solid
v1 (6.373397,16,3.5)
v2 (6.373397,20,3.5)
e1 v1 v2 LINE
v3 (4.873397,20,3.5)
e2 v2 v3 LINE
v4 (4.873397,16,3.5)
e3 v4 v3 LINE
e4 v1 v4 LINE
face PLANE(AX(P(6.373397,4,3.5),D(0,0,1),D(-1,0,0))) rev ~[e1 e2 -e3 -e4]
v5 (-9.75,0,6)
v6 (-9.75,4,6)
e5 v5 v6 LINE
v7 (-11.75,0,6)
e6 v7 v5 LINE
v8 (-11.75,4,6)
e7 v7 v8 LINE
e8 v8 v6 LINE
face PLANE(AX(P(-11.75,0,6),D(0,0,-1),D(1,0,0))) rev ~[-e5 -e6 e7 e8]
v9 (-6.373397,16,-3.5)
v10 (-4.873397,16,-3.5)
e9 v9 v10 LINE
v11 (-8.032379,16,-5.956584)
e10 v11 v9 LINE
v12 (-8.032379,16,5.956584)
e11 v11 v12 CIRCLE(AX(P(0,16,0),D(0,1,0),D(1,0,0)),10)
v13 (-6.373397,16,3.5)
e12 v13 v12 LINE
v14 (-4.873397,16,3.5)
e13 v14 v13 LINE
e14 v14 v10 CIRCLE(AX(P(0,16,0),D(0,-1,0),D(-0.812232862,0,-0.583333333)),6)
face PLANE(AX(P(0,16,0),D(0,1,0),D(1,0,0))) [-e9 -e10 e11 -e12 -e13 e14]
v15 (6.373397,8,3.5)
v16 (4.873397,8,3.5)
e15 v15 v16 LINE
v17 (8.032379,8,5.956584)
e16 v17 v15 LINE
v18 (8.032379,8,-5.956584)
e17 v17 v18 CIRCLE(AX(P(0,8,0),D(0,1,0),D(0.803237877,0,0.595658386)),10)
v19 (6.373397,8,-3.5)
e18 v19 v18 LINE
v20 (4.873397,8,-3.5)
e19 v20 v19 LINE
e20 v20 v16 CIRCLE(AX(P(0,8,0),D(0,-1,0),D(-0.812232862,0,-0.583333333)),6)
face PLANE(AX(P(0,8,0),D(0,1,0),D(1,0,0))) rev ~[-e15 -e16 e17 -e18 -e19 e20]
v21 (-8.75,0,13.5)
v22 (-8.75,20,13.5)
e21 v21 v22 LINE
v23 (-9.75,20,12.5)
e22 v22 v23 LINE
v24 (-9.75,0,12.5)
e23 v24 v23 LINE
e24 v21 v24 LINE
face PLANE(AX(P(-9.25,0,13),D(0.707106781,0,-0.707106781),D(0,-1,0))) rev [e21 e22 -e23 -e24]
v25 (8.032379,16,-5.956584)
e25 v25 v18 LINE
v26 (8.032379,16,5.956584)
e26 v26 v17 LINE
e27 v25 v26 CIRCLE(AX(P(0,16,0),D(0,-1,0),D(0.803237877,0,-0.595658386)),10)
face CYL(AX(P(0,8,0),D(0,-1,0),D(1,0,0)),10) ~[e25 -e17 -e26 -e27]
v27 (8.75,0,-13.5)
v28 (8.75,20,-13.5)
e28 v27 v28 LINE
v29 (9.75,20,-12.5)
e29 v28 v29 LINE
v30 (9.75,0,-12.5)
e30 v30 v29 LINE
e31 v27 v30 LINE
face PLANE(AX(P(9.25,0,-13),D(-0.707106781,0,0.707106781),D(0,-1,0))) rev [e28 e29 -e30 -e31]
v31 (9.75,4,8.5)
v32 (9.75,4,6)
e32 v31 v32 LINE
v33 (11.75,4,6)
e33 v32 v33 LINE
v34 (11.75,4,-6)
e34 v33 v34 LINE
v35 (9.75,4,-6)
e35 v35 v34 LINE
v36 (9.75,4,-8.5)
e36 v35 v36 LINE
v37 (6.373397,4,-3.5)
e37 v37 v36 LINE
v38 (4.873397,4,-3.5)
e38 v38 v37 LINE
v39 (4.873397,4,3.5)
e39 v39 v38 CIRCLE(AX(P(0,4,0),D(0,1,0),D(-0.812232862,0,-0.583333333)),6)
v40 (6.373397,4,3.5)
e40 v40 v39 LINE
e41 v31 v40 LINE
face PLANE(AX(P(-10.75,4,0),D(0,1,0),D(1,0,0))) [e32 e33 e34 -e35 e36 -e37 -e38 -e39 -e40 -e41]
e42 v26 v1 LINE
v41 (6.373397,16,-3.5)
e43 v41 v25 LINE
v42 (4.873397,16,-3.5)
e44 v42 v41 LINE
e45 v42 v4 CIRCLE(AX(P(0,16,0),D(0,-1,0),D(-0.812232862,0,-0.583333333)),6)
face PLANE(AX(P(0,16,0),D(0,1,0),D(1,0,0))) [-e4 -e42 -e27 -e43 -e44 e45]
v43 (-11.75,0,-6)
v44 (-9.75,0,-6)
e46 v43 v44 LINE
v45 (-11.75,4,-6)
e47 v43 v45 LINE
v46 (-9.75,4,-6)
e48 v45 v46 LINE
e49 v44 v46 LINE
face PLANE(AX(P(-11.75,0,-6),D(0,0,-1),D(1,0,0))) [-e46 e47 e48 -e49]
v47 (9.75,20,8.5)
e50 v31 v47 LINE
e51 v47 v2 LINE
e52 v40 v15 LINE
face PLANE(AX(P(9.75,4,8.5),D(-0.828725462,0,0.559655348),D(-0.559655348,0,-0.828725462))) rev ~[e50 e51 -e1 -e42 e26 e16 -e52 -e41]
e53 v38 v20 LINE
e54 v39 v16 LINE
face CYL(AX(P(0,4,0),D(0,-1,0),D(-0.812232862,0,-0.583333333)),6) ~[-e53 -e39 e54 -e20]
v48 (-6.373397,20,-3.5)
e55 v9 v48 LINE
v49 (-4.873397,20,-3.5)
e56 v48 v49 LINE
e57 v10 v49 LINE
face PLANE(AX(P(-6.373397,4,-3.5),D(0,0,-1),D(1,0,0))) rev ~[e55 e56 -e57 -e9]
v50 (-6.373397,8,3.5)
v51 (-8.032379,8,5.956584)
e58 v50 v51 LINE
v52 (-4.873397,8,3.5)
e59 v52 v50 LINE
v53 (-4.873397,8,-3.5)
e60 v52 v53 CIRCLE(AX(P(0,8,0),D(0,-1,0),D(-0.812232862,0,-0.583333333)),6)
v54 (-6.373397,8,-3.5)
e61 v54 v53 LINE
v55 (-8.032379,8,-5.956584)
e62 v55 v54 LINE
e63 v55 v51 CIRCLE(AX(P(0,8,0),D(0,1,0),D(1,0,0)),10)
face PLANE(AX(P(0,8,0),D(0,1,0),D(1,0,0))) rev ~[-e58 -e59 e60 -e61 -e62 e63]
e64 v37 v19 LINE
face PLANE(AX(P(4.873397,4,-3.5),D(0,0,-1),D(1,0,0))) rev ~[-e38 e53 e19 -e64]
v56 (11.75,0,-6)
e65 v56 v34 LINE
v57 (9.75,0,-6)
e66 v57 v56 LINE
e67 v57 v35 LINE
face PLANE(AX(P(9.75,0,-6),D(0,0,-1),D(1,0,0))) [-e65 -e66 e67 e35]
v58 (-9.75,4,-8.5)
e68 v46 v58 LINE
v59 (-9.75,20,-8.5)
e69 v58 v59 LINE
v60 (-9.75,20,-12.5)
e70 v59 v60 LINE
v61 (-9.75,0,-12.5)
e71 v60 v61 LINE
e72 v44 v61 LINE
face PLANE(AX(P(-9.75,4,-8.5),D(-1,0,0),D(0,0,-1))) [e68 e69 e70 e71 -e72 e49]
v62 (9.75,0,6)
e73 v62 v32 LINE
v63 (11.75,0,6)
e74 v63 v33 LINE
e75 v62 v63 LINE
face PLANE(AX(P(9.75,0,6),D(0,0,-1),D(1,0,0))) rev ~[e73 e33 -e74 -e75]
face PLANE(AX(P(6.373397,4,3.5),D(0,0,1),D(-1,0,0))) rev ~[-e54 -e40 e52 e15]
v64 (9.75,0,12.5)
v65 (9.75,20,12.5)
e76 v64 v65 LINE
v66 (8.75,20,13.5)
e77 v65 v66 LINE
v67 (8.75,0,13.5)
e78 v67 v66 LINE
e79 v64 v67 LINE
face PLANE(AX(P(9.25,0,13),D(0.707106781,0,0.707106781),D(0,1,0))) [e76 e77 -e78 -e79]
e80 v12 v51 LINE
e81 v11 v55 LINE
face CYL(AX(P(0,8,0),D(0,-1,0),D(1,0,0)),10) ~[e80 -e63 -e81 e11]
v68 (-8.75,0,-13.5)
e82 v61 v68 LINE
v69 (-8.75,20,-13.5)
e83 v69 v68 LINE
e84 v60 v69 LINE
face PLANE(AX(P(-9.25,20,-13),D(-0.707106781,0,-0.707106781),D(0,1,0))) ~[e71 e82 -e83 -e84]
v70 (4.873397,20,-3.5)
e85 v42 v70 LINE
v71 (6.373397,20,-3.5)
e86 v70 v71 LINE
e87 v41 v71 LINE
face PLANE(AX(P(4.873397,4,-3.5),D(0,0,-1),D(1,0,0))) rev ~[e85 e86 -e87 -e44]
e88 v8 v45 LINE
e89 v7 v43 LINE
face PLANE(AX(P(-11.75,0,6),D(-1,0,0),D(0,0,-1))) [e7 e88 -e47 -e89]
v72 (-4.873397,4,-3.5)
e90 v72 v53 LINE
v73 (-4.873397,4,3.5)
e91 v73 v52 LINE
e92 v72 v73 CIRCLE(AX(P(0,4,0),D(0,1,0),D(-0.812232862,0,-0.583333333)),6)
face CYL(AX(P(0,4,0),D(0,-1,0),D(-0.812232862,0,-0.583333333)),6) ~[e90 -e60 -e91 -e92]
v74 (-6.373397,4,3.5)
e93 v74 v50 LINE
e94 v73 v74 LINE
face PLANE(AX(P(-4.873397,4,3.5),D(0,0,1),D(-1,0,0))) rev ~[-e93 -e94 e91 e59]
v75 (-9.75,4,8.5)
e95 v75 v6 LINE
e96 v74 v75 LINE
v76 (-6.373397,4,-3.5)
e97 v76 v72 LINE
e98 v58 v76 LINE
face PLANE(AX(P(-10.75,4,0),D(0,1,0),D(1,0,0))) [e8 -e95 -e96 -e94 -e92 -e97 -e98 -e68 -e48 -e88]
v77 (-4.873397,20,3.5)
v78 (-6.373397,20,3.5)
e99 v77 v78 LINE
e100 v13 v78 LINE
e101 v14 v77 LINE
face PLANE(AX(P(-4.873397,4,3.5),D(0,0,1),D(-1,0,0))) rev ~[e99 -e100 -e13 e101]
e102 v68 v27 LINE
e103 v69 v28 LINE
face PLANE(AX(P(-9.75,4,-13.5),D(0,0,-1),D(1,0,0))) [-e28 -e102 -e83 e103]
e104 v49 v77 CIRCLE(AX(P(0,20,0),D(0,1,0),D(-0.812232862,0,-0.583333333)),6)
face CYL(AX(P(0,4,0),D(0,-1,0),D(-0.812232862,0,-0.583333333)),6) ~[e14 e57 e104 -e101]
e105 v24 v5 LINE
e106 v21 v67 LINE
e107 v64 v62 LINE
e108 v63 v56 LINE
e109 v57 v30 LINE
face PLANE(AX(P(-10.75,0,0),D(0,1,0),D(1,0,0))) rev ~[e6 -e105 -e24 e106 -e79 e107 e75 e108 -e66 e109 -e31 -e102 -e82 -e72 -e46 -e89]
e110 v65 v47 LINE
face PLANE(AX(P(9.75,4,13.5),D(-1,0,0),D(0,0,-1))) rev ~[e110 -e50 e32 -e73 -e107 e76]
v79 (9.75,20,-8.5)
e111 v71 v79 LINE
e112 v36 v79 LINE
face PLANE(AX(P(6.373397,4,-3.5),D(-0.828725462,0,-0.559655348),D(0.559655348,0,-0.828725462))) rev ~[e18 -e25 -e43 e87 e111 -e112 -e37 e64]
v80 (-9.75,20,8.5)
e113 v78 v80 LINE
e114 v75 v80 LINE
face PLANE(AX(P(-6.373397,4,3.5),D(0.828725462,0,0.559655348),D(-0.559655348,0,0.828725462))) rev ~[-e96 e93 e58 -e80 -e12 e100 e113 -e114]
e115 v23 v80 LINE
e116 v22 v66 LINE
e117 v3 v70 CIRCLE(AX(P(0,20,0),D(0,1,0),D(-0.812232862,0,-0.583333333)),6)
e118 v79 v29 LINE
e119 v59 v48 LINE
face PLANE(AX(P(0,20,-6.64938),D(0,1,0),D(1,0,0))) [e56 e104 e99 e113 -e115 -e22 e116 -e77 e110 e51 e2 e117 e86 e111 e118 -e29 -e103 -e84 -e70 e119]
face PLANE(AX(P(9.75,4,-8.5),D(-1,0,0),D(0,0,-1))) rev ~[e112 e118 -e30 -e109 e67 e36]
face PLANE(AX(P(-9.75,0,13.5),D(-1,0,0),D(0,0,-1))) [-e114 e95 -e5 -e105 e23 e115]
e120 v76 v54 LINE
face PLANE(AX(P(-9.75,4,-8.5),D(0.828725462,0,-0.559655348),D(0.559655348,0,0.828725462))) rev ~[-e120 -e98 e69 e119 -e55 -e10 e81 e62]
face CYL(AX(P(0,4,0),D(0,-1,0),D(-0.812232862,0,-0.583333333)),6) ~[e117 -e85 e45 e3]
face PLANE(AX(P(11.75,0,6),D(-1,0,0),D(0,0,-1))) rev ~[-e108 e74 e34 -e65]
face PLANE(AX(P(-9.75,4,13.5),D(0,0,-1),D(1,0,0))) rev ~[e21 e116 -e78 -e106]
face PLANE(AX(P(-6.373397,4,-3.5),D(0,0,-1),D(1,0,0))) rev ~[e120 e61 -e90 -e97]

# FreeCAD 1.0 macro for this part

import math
import FreeCAD as App
import Part
import Sketcher

V = App.Vector


def edges_at(feature, points):
    """Names of the edges that pass closest to the given points."""
    edges = feature.Shape.Edges
    near = lambda p: min(range(len(edges)), key=lambda i: edges[i].distToShape(Part.Vertex(*p))[0])
    return sorted({f"Edge{near(p) + 1}" for p in points})


def add_polygon(sketch, points):
    """Adds a closed chain of lines whose ends are joined by coincident constraints."""
    first, n = sketch.GeometryCount, len(points)
    for a, b in zip(points, points[1:] + points[:1]):
        sketch.addGeometry(Part.LineSegment(App.Vector(*a, 0), App.Vector(*b, 0)), False)
    for i in range(n):
        sketch.addConstraint(Sketcher.Constraint("Coincident", first + i, 2, first + (i + 1) % n, 1))

doc = App.newDocument("Part")
body = doc.addObject("PartDesign::Body", "Body")

# Sketch on XZ plane
sketch1 = doc.addObject("Sketcher::SketchObject", "Sketch")
body.addObject(sketch1)
sketch1.AttachmentSupport = (doc.XZ_Plane, [""])
sketch1.MapMode = "FlatFace"
add_polygon(sketch1, [(-11.8, -6), (-11.8, 6), (-9.8, 6), (-9.8, 13.5), (9.8, 13.5), (9.8, 6), (11.8, 6), (11.8, -6), (9.8, -6), (9.8, -13.5), (-9.8, -13.5), (-9.8, -6)])  # lines 0-11
sketch1.addConstraint(Sketcher.Constraint("Vertical", 0))
sketch1.addConstraint(Sketcher.Constraint("Horizontal", 1))
sketch1.addConstraint(Sketcher.Constraint("Vertical", 2))
sketch1.addConstraint(Sketcher.Constraint("Horizontal", 3))
sketch1.addConstraint(Sketcher.Constraint("Vertical", 4))
sketch1.addConstraint(Sketcher.Constraint("Horizontal", 5))
sketch1.addConstraint(Sketcher.Constraint("Vertical", 6))
sketch1.addConstraint(Sketcher.Constraint("Horizontal", 7))
sketch1.addConstraint(Sketcher.Constraint("Vertical", 8))
sketch1.addConstraint(Sketcher.Constraint("Horizontal", 9))
sketch1.addConstraint(Sketcher.Constraint("Vertical", 10))
sketch1.addConstraint(Sketcher.Constraint("Horizontal", 11))
sketch1.addConstraint(Sketcher.Constraint("Symmetric", 0, 2, 6, 2, -1, 1))
sketch1.addConstraint(Sketcher.Constraint("Symmetric", 2, 2, 8, 2, -1, 1))
sketch1.addConstraint(Sketcher.Constraint("Symmetric", 4, 2, 10, 2, -1, 1))
sketch1.addConstraint(Sketcher.Constraint("Symmetric", 1, 2, 4, 2, -2))
sketch1.addConstraint(Sketcher.Constraint("DistanceX", 1, 1, 1, 2, 2.0))
sketch1.addConstraint(Sketcher.Constraint("DistanceY", 0, 1, 0, 2, 12.0))
sketch1.addConstraint(Sketcher.Constraint("DistanceX", 3, 1, 3, 2, 19.5))
sketch1.addConstraint(Sketcher.Constraint("DistanceY", 2, 1, 2, 2, 7.5))
pad1 = doc.addObject("PartDesign::Pad", "Pad")
body.addObject(pad1)
pad1.Profile = sketch1
pad1.Length = 4
pad1.Reversed = True

# Sketch on XZ plane
sketch2 = doc.addObject("Sketcher::SketchObject", "Sketch001")
body.addObject(sketch2)
sketch2.AttachmentSupport = (doc.XZ_Plane, [""])
sketch2.MapMode = "FlatFace"
sketch2.AttachmentOffset = App.Placement(V(0, 0, -4), App.Rotation())
sketch2.addGeometry(Part.LineSegment(V(-6.4, -3.5, 0), V(-4.9, -3.5, 0)), False)
sketch2.addGeometry(Part.ArcOfCircle(Part.Circle(V(0, 0, 0), V(0, 0, 1), 6), math.radians(144), math.radians(216)), False)
sketch2.addGeometry(Part.LineSegment(V(-4.9, 3.5, 0), V(-6.4, 3.5, 0)), False)
sketch2.addGeometry(Part.LineSegment(V(-6.4, 3.5, 0), V(-9.8, 8.5, 0)), False)
sketch2.addGeometry(Part.LineSegment(V(-9.8, 8.5, 0), V(-9.8, 13.5, 0)), False)
sketch2.addGeometry(Part.LineSegment(V(-9.8, 13.5, 0), V(9.8, 13.5, 0)), False)
sketch2.addGeometry(Part.LineSegment(V(9.8, 13.5, 0), V(9.8, 8.5, 0)), False)
sketch2.addGeometry(Part.LineSegment(V(9.8, 8.5, 0), V(6.4, 3.5, 0)), False)
sketch2.addGeometry(Part.LineSegment(V(6.4, 3.5, 0), V(4.9, 3.5, 0)), False)
sketch2.addGeometry(Part.ArcOfCircle(Part.Circle(V(0, 0, 0), V(0, 0, 1), 6), math.radians(-36), math.radians(36)), False)
sketch2.addGeometry(Part.LineSegment(V(4.9, -3.5, 0), V(6.4, -3.5, 0)), False)
sketch2.addGeometry(Part.LineSegment(V(6.4, -3.5, 0), V(9.8, -8.5, 0)), False)
sketch2.addGeometry(Part.LineSegment(V(9.8, -8.5, 0), V(9.8, -13.5, 0)), False)
sketch2.addGeometry(Part.LineSegment(V(9.8, -13.5, 0), V(-9.8, -13.5, 0)), False)
sketch2.addGeometry(Part.LineSegment(V(-9.8, -13.5, 0), V(-9.8, -8.5, 0)), False)
sketch2.addGeometry(Part.LineSegment(V(-9.8, -8.5, 0), V(-6.4, -3.5, 0)), False)
sketch2.addConstraint(Sketcher.Constraint("Coincident", 0, 2, 1, 2))
sketch2.addConstraint(Sketcher.Constraint("Coincident", 1, 1, 2, 1))
sketch2.addConstraint(Sketcher.Constraint("Coincident", 2, 2, 3, 1))
sketch2.addConstraint(Sketcher.Constraint("Coincident", 3, 2, 4, 1))
sketch2.addConstraint(Sketcher.Constraint("Coincident", 4, 2, 5, 1))
sketch2.addConstraint(Sketcher.Constraint("Coincident", 5, 2, 6, 1))
sketch2.addConstraint(Sketcher.Constraint("Coincident", 6, 2, 7, 1))
sketch2.addConstraint(Sketcher.Constraint("Coincident", 7, 2, 8, 1))
sketch2.addConstraint(Sketcher.Constraint("Coincident", 8, 2, 9, 2))
sketch2.addConstraint(Sketcher.Constraint("Coincident", 9, 1, 10, 1))
sketch2.addConstraint(Sketcher.Constraint("Coincident", 10, 2, 11, 1))
sketch2.addConstraint(Sketcher.Constraint("Coincident", 11, 2, 12, 1))
sketch2.addConstraint(Sketcher.Constraint("Coincident", 12, 2, 13, 1))
sketch2.addConstraint(Sketcher.Constraint("Coincident", 13, 2, 14, 1))
sketch2.addConstraint(Sketcher.Constraint("Coincident", 14, 2, 15, 1))
sketch2.addConstraint(Sketcher.Constraint("Coincident", 15, 2, 0, 1))
sketch2.addConstraint(Sketcher.Constraint("Horizontal", 0))
sketch2.addConstraint(Sketcher.Constraint("Horizontal", 2))
sketch2.addConstraint(Sketcher.Constraint("Vertical", 4))
sketch2.addConstraint(Sketcher.Constraint("Horizontal", 5))
sketch2.addConstraint(Sketcher.Constraint("Vertical", 6))
sketch2.addConstraint(Sketcher.Constraint("Horizontal", 8))
sketch2.addConstraint(Sketcher.Constraint("Horizontal", 10))
sketch2.addConstraint(Sketcher.Constraint("Vertical", 12))
sketch2.addConstraint(Sketcher.Constraint("Horizontal", 13))
sketch2.addConstraint(Sketcher.Constraint("Vertical", 14))
sketch2.addConstraint(Sketcher.Constraint("Coincident", 1, 3, -1, 1))
sketch2.addConstraint(Sketcher.Constraint("Coincident", 9, 3, -1, 1))
sketch2.addConstraint(Sketcher.Constraint("Equal", 1, 9))
sketch2.addConstraint(Sketcher.Constraint("Symmetric", 2, 2, 10, 2, -1, 1))
sketch2.addConstraint(Sketcher.Constraint("Symmetric", 3, 2, 11, 2, -1, 1))
sketch2.addConstraint(Sketcher.Constraint("Symmetric", 5, 2, 13, 2, -1, 1))
sketch2.addConstraint(Sketcher.Constraint("Symmetric", 7, 2, 15, 2, -1, 1))
sketch2.addConstraint(Sketcher.Constraint("Symmetric", 3, 2, 6, 2, -2))
sketch2.addConstraint(Sketcher.Constraint("Symmetric", 2, 2, 7, 2, -2))
sketch2.addConstraint(Sketcher.Constraint("Parallel", 7, 15))
sketch2.addConstraint(Sketcher.Constraint("Radius", 1, 6.0))
sketch2.addConstraint(Sketcher.Constraint("DistanceY", 4, 1, 4, 2, 5.0))
sketch2.addConstraint(Sketcher.Constraint("DistanceX", 0, 1, 0, 2, 1.5))
sketch2.addConstraint(Sketcher.Constraint("DistanceX", 5, 1, 5, 2, 19.5))
sketch2.addConstraint(Sketcher.Constraint("DistanceY", 0, 2, 1, 1, 7.0))
sketch2.addConstraint(Sketcher.Constraint("DistanceY", 2, 2, 3, 2, 5.0))
pad2 = doc.addObject("PartDesign::Pad", "Pad001")
body.addObject(pad2)
pad2.Profile = sketch2
pad2.Length = 16
pad2.Reversed = True

# Sketch on XZ plane
sketch3 = doc.addObject("Sketcher::SketchObject", "Sketch002")
body.addObject(sketch3)
sketch3.AttachmentSupport = (doc.XZ_Plane, [""])
sketch3.MapMode = "FlatFace"
sketch3.AttachmentOffset = App.Placement(V(0, 0, -8), App.Rotation())
sketch3.addGeometry(Part.Circle(V(0, 0, 0), V(0, 0, 1), 10), False)
sketch3.addConstraint(Sketcher.Constraint("Coincident", 0, 3, -1, 1))
sketch3.addConstraint(Sketcher.Constraint("Diameter", 0, 20.0))
pad3 = doc.addObject("PartDesign::Pad", "Pad002")
body.addObject(pad3)
pad3.Profile = sketch3
pad3.Length = 8
pad3.Reversed = True
doc.recompute()

chamfer = doc.addObject("PartDesign::Chamfer", "Chamfer")
body.addObject(chamfer)
chamfer.Base = (pad3, edges_at(pad3, [
    (-9.75, 10, -13.5),
    (9.75, 10, -13.5),
    (9.75, 10, 13.5),
    (-9.75, 10, 13.5),
]))
chamfer.Size = 1

doc.recompute()
